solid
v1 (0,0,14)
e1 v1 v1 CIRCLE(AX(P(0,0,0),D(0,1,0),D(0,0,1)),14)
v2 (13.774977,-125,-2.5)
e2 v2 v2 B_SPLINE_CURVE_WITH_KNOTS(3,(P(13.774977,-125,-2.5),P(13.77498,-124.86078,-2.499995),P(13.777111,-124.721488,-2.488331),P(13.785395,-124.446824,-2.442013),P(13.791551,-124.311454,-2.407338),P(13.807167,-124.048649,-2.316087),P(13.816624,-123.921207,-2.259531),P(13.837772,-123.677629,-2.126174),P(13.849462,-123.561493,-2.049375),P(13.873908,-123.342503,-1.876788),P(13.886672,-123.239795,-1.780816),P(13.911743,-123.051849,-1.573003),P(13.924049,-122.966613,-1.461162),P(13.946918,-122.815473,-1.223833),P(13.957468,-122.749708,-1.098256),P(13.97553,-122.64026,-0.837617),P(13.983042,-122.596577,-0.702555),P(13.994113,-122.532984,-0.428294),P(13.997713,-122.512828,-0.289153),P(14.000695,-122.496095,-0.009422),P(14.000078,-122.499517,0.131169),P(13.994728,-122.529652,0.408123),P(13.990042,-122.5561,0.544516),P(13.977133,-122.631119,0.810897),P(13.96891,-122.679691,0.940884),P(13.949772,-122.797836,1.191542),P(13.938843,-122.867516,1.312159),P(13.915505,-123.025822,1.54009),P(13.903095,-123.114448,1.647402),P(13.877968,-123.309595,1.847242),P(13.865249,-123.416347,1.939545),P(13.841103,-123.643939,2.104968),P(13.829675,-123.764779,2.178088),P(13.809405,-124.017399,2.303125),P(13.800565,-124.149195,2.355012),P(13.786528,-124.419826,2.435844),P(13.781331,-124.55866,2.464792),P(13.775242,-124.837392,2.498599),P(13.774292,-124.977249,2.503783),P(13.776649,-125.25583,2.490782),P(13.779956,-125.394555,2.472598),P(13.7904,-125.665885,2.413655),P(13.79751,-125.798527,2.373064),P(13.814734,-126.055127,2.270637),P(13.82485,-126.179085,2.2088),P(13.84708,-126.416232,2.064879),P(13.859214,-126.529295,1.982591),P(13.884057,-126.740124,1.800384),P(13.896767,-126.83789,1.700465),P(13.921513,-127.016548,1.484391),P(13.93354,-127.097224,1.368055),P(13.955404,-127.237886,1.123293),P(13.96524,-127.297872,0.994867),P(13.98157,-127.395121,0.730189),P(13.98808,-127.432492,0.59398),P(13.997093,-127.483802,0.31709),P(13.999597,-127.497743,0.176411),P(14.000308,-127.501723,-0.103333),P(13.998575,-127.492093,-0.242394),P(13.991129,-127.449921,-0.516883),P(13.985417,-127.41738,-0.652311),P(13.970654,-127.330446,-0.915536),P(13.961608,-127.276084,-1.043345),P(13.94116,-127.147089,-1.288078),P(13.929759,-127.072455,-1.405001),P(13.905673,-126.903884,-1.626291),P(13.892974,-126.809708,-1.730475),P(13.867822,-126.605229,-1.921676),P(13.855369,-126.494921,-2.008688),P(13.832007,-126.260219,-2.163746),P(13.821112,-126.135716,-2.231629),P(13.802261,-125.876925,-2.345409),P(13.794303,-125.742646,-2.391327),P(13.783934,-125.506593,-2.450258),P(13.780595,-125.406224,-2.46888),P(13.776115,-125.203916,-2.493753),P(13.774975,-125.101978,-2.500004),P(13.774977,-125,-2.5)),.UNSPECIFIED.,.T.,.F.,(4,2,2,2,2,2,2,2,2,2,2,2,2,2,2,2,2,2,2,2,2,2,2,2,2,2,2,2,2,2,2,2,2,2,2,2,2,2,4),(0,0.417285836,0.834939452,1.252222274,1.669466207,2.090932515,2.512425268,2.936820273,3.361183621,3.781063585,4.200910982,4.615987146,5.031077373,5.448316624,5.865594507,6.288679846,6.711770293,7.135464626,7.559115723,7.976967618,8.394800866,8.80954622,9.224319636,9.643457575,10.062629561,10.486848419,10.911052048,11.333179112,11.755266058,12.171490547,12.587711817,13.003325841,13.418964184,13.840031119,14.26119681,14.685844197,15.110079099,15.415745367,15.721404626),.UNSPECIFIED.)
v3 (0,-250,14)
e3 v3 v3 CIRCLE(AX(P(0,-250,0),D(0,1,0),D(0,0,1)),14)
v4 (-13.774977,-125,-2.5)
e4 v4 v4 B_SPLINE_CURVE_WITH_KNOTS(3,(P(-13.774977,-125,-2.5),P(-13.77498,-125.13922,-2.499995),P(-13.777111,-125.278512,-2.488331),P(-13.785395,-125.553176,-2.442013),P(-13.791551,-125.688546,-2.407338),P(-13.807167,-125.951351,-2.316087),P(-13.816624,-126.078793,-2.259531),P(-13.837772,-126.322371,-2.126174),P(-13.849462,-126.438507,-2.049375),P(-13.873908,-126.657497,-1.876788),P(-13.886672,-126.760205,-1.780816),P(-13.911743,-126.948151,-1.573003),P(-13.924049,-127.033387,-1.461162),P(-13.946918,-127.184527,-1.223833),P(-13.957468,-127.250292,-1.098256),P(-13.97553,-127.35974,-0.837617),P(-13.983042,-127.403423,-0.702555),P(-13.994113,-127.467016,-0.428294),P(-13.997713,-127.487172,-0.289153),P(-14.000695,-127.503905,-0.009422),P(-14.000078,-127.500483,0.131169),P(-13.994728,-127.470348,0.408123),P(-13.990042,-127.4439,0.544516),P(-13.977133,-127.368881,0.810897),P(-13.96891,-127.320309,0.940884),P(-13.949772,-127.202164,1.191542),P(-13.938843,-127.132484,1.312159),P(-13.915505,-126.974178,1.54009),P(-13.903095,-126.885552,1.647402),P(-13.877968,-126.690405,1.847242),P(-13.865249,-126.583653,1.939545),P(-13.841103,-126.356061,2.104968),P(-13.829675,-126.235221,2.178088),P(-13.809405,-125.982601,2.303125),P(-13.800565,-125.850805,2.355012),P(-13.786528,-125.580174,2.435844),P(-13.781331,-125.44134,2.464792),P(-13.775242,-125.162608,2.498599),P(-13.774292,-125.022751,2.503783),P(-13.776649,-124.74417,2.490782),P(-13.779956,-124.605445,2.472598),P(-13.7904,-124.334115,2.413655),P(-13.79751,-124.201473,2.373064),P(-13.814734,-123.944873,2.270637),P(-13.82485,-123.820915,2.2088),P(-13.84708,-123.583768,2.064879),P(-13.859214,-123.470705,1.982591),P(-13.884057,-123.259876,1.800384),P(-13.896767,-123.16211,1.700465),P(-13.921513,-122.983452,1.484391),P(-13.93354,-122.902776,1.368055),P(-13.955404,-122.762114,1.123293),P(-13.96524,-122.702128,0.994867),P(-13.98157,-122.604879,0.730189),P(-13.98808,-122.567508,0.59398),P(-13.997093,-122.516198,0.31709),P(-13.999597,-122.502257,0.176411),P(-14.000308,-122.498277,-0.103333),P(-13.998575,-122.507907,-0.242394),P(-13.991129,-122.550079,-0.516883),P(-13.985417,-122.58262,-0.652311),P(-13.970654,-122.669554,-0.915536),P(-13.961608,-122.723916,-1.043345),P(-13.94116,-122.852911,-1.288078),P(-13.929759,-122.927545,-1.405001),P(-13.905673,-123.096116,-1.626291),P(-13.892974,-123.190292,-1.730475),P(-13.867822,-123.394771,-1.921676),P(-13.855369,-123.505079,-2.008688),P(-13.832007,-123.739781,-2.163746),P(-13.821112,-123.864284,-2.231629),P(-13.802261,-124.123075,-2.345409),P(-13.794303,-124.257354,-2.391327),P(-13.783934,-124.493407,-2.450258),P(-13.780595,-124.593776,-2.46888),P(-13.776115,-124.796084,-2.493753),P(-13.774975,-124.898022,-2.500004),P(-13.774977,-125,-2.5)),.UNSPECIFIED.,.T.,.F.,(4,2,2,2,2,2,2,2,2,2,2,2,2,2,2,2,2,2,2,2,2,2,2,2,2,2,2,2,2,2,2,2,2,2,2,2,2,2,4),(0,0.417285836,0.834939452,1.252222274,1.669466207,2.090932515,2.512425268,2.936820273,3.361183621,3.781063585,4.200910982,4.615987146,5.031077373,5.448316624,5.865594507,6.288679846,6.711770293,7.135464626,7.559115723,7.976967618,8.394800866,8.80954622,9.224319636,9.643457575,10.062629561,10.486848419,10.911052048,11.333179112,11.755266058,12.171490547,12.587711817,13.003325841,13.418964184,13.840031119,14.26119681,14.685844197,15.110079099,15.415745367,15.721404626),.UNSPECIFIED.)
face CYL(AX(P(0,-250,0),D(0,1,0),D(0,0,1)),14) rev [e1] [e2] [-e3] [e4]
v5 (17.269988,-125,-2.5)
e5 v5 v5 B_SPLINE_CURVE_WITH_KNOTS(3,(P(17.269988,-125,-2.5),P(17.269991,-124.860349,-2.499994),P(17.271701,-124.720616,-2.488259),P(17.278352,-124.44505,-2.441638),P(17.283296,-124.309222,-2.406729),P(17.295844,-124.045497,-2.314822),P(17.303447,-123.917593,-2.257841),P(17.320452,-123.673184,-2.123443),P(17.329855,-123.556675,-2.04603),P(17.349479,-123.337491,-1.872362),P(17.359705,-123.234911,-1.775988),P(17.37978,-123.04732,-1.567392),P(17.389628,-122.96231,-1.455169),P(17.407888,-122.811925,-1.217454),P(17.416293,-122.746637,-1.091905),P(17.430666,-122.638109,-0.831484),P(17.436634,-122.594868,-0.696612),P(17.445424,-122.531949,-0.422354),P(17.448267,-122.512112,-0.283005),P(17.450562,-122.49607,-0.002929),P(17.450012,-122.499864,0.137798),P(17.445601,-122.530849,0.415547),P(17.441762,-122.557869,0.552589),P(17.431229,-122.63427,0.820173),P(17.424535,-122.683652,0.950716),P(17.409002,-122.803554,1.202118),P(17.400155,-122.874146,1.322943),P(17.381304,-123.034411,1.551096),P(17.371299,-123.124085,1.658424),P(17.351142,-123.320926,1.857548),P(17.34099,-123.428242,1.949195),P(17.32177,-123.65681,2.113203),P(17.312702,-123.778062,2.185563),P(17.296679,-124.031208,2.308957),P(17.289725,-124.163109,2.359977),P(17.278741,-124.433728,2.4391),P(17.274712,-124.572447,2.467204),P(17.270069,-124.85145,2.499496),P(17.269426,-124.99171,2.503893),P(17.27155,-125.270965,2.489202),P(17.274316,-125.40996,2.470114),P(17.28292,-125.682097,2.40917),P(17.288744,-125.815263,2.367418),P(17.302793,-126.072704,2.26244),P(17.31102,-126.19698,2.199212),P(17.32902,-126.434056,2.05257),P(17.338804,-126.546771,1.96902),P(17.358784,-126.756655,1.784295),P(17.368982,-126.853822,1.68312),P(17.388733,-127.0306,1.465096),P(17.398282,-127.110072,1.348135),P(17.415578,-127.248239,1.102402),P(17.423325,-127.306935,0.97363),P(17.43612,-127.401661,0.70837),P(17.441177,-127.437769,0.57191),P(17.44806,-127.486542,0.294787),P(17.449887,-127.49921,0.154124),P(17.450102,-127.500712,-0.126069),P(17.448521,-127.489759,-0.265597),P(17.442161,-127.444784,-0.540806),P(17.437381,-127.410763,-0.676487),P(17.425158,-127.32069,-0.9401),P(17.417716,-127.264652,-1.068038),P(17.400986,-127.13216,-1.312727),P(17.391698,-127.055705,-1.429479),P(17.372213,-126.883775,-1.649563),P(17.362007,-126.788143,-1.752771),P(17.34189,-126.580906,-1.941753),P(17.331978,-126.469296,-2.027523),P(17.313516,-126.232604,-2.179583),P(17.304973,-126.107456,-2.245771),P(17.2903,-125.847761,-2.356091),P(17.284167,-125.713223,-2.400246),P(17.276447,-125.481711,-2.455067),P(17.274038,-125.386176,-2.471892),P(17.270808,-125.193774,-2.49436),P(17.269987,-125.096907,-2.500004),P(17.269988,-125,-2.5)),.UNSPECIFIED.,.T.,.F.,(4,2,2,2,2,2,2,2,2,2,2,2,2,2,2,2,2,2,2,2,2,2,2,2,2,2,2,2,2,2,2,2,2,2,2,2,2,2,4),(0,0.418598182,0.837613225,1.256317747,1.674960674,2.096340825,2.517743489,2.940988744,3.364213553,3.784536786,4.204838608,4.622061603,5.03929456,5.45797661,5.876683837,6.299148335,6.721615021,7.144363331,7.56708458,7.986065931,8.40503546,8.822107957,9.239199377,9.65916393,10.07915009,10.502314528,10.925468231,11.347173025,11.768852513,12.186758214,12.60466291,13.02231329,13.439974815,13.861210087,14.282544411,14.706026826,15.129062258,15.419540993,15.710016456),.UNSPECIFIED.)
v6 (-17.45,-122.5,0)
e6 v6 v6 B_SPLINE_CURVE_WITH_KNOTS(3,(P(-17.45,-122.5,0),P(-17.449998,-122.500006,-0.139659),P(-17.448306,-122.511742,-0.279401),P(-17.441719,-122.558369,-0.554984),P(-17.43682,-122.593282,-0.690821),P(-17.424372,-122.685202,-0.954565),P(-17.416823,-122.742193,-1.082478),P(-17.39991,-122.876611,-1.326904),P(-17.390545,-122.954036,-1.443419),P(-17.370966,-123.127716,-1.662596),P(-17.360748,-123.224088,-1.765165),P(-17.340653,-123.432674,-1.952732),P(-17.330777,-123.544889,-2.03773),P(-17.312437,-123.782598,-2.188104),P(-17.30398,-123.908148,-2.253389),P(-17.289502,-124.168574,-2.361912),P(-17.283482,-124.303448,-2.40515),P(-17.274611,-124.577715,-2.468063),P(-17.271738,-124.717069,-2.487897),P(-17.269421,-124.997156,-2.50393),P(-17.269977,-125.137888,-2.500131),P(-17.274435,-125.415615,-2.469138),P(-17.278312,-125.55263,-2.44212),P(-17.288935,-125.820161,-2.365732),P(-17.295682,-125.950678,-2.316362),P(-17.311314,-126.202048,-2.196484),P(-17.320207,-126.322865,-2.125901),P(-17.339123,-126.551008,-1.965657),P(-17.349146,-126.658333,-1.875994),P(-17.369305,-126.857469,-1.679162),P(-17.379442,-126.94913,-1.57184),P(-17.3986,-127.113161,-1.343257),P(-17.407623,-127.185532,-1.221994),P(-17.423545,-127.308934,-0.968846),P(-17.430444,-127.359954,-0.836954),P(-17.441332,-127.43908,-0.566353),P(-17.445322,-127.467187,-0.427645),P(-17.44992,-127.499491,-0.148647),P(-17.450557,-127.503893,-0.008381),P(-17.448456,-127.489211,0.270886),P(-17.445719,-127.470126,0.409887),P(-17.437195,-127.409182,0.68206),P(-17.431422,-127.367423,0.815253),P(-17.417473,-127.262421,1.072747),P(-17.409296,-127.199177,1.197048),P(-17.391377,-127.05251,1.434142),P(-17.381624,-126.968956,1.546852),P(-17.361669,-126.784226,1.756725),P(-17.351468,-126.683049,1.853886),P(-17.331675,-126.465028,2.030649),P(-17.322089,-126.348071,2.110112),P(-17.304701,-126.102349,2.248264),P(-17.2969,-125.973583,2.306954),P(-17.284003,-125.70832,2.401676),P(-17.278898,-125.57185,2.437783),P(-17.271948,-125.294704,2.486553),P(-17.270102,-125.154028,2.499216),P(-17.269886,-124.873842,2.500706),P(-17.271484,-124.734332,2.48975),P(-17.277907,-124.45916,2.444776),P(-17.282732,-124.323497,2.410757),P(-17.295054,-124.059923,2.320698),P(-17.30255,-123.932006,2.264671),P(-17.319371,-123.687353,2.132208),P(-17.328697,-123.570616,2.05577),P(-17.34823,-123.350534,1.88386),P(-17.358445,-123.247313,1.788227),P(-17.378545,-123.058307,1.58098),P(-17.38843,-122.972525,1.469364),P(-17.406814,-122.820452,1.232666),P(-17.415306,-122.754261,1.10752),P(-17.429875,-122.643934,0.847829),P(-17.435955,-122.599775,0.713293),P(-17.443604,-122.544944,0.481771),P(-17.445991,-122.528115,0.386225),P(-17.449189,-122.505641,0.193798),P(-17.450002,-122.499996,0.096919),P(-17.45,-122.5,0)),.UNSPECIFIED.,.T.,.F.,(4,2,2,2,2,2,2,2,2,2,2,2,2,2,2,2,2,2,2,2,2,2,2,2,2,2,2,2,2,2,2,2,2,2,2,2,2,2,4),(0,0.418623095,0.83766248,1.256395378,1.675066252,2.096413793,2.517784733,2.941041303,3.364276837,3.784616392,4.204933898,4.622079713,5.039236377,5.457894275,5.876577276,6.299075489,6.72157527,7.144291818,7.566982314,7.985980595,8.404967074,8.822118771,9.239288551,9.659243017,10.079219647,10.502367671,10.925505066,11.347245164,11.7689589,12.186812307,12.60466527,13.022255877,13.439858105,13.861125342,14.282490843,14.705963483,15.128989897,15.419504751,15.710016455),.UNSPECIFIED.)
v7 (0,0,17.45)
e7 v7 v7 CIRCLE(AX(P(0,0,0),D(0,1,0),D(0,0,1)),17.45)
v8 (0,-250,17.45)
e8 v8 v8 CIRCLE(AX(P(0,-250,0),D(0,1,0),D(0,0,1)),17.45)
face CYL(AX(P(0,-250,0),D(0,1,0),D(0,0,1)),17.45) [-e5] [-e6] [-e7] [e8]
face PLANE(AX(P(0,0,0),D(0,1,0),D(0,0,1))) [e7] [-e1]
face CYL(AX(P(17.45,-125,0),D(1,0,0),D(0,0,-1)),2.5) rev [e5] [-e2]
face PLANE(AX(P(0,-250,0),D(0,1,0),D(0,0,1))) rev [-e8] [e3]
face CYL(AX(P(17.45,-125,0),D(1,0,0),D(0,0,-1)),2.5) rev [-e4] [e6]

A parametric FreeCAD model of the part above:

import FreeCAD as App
import Part
import Sketcher
Q = App.Units.Quantity

doc = App.newDocument("Part")
body = doc.addObject("PartDesign::Body", "Body")

# Sketch on XZ plane
sketch1 = body.newObject("Sketcher::SketchObject", "Sketch")
sketch1.AttachmentSupport = (doc.getObject("XZ_Plane"), [""])
sketch1.MapMode = "FlatFace"
sketch1.addGeometry([
    Part.Circle(App.Vector(0, 0, 0), App.Vector(0, 0, 1), 17),
    Part.Circle(App.Vector(0, 0, 0), App.Vector(0, 0, 1), 14),
], False)
sketch1.addConstraint([
    Sketcher.Constraint("Coincident", 0, 3, -1, 1),
    Sketcher.Constraint("Coincident", 1, 3, -1, 1),
    Sketcher.Constraint("Diameter", 1, Q("28 mm")),
    Sketcher.Constraint("Diameter", 0, Q("34.9 mm")),
])
pad1 = body.newObject("PartDesign::Pad", "Pad")
pad1.Profile = sketch1
pad1.Length = 250

# Sketch on YZ plane
sketch2 = body.newObject("Sketcher::SketchObject", "Sketch001")
sketch2.AttachmentSupport = (doc.getObject("YZ_Plane"), [""])
sketch2.MapMode = "FlatFace"
sketch2.AttachmentOffset = App.Placement(App.Vector(0, 0, 17.45), App.Rotation())
sketch2.addGeometry(Part.Circle(App.Vector(-125, 0, 0), App.Vector(0, 0, 1), 2.5), False)
sketch2.addConstraint([
    Sketcher.Constraint("PointOnObject", 0, 3, -1),
    Sketcher.Constraint("Diameter", 0, Q("5 mm")),
    Sketcher.Constraint("DistanceX", 0, 3, -1, 1, Q("125 mm")),
])
doc.recompute()
hole = body.newObject("PartDesign::Hole", "Hole")
hole.Profile = sketch2
hole.ThreadType = "None"
hole.Diameter = 5
hole.DepthType = "ThroughAll"

doc.recompute()
